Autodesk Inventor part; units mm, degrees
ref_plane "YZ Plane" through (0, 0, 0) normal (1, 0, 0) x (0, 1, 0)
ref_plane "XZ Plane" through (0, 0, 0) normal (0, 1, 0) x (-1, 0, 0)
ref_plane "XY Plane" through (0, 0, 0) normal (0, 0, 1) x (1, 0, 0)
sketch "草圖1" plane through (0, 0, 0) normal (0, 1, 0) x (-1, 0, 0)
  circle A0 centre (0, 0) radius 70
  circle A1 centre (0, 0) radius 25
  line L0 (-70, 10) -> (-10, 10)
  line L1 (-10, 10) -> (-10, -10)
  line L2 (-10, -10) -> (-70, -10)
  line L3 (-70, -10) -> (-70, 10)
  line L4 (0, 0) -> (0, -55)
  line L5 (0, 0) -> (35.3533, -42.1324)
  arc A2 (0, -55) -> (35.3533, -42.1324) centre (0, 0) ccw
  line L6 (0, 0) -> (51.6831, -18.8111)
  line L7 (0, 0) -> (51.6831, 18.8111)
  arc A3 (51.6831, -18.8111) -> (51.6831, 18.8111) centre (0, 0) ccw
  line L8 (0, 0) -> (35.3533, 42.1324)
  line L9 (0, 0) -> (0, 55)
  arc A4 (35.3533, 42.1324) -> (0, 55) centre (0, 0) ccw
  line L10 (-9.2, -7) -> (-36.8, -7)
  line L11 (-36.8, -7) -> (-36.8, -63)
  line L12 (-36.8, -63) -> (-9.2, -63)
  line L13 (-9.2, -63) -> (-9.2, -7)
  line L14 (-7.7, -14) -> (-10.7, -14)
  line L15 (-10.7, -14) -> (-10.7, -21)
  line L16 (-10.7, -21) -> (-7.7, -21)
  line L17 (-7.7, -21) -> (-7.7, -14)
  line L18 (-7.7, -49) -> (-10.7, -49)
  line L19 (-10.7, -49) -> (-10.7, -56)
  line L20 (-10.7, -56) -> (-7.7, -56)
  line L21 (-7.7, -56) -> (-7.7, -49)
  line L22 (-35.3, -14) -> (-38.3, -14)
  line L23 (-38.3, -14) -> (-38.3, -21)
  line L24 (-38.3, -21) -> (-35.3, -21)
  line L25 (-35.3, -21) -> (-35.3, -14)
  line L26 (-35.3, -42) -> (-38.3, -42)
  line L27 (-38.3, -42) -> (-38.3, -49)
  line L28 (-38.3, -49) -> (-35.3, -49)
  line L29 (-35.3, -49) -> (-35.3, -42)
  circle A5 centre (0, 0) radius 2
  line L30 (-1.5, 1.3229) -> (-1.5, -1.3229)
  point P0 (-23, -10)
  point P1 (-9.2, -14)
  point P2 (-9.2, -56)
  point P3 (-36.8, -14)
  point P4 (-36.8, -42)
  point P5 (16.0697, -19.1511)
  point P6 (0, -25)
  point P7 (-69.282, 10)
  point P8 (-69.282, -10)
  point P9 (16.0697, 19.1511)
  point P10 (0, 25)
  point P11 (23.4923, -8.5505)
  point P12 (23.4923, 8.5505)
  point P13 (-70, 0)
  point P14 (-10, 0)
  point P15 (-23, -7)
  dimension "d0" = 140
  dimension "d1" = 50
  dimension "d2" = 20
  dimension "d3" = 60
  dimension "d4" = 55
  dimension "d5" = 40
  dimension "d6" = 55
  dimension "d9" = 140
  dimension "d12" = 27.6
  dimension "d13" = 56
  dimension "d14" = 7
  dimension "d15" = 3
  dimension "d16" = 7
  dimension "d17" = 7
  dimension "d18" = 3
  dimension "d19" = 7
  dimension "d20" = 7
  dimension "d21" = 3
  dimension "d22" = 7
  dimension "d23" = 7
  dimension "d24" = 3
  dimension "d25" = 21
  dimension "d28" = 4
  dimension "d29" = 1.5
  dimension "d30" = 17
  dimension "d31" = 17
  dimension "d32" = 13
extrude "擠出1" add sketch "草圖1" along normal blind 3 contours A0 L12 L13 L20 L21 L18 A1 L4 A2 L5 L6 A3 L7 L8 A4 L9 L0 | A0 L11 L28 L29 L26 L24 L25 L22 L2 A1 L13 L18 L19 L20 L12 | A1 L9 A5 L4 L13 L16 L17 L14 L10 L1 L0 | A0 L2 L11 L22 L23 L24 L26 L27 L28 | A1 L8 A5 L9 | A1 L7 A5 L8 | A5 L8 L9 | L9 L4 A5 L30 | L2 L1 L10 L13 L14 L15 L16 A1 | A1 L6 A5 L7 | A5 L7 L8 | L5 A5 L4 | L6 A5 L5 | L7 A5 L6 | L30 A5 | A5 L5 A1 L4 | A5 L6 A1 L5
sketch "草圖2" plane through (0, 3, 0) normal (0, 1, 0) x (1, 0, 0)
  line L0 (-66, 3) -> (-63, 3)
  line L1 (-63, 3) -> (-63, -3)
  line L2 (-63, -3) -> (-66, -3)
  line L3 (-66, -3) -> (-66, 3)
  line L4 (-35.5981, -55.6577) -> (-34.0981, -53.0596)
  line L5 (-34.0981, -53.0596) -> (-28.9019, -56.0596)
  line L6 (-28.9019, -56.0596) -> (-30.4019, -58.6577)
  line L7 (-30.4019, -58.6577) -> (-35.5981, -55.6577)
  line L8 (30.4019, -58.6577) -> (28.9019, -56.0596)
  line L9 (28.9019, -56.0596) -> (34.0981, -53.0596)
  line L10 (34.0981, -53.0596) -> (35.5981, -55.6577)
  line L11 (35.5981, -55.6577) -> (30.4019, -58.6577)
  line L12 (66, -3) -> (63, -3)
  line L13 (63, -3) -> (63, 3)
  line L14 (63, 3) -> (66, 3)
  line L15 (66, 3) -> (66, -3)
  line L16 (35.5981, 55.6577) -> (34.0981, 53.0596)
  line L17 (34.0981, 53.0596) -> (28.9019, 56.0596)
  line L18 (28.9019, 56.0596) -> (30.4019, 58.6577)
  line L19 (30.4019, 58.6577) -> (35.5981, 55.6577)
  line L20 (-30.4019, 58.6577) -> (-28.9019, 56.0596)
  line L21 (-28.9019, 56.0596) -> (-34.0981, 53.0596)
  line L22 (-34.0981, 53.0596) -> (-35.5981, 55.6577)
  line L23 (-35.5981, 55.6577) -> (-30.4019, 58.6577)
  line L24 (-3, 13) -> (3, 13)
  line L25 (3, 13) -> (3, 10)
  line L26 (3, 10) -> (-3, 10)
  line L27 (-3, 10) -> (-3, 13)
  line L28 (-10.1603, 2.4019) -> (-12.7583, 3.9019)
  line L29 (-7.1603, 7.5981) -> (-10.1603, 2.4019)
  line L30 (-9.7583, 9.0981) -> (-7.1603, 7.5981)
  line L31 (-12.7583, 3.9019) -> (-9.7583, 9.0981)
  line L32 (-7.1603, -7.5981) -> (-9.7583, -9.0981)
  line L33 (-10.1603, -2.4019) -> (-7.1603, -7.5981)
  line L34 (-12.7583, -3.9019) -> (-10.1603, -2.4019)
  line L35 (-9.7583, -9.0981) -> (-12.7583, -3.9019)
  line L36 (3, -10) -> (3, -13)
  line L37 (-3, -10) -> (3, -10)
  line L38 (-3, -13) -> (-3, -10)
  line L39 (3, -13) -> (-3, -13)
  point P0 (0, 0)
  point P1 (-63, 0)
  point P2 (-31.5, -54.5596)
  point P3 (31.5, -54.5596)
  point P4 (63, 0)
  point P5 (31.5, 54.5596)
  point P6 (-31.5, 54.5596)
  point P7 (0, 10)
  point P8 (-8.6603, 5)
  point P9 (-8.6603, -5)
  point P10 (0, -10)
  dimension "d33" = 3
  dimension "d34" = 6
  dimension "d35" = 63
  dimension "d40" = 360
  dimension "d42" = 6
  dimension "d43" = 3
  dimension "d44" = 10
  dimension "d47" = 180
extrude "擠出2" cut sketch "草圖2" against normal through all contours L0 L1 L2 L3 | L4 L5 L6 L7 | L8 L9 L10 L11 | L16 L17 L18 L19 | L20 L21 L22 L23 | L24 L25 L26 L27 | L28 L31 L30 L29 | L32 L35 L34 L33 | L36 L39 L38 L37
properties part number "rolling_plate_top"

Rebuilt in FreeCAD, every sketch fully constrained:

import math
import FreeCAD as App
import Part
import Sketcher

V = App.Vector
Q = App.Units.Quantity

doc = App.newDocument("Part")
body = doc.addObject("PartDesign::Body", "Body")

sketch1 = body.newObject("Sketcher::SketchObject", "Sketch")
sketch1.AttachmentSupport = (doc.getObject("XZ_Plane"), [""])
sketch1.MapMode = "FlatFace"
sketch1.addGeometry(Part.LineSegment(V(69.3, 10, 0), V(10, 10, 0)), False)
sketch1.addGeometry(Part.LineSegment(V(10, 10, 0), V(10, -10, 0)), False)
sketch1.addGeometry(Part.LineSegment(V(10, -10, 0), V(69.3, -10, 0)), False)
sketch1.addGeometry(Part.ArcOfCircle(Part.Circle(V(0, 0, 0), V(0, 0, 1), 70), math.radians(8), math.radians(352)), False)
sketch1.addGeometry(Part.LineSegment(V(7.7, -56, 0), V(10.7, -56, 0)), False)
sketch1.addGeometry(Part.LineSegment(V(10.7, -56, 0), V(10.7, -49, 0)), False)
sketch1.addGeometry(Part.LineSegment(V(10.7, -49, 0), V(7.7, -49, 0)), False)
sketch1.addGeometry(Part.LineSegment(V(7.7, -49, 0), V(7.7, -56, 0)), False)
sketch1.addGeometry(Part.LineSegment(V(0, -55, 0), V(0, -25, 0)), False)
sketch1.addGeometry(Part.ArcOfCircle(Part.Circle(V(0, 0, 0), V(0, 0, 1), 25), math.radians(-130), math.radians(-90)), False)
sketch1.addGeometry(Part.LineSegment(V(-16.1, -19.2, 0), V(-35.4, -42.1, 0)), False)
sketch1.addGeometry(Part.ArcOfCircle(Part.Circle(V(0, 0, 0), V(0, 0, 1), 55), math.radians(-130), math.radians(-90)), False)
sketch1.addGeometry(Part.LineSegment(V(-51.7, -18.8, 0), V(-23.5, -8.6, 0)), False)
sketch1.addGeometry(Part.ArcOfCircle(Part.Circle(V(0, 0, 0), V(0, 0, 1), 25), math.radians(160), math.radians(200)), False)
sketch1.addGeometry(Part.LineSegment(V(-23.5, 8.6, 0), V(-51.7, 18.8, 0)), False)
sketch1.addGeometry(Part.ArcOfCircle(Part.Circle(V(0, 0, 0), V(0, 0, 1), 55), math.radians(160), math.radians(200)), False)
sketch1.addGeometry(Part.LineSegment(V(-35.4, 42.1, 0), V(-16.1, 19.2, 0)), False)
sketch1.addGeometry(Part.ArcOfCircle(Part.Circle(V(0, 0, 0), V(0, 0, 1), 25), math.radians(90), math.radians(130)), False)
sketch1.addGeometry(Part.LineSegment(V(0, 25, 0), V(0, 55, 0)), False)
sketch1.addGeometry(Part.ArcOfCircle(Part.Circle(V(0, 0, 0), V(0, 0, 1), 55), math.radians(90), math.radians(130)), False)
sketch1.addGeometry(Part.LineSegment(V(35.3, -49, 0), V(38.3, -49, 0)), False)
sketch1.addGeometry(Part.LineSegment(V(38.3, -49, 0), V(38.3, -42, 0)), False)
sketch1.addGeometry(Part.LineSegment(V(38.3, -42, 0), V(35.3, -42, 0)), False)
sketch1.addGeometry(Part.LineSegment(V(35.3, -42, 0), V(35.3, -49, 0)), False)
sketch1.addGeometry(Part.LineSegment(V(35.3, -21, 0), V(38.3, -21, 0)), False)
sketch1.addGeometry(Part.LineSegment(V(38.3, -21, 0), V(38.3, -14, 0)), False)
sketch1.addGeometry(Part.LineSegment(V(38.3, -14, 0), V(35.3, -14, 0)), False)
sketch1.addGeometry(Part.LineSegment(V(35.3, -14, 0), V(35.3, -21, 0)), False)
sketch1.addGeometry(Part.LineSegment(V(7.7, -21, 0), V(10.7, -21, 0)), False)
sketch1.addGeometry(Part.LineSegment(V(10.7, -21, 0), V(10.7, -14, 0)), False)
sketch1.addGeometry(Part.LineSegment(V(10.7, -14, 0), V(7.7, -14, 0)), False)
sketch1.addGeometry(Part.LineSegment(V(7.7, -14, 0), V(7.7, -21, 0)), False)
sketch1.addConstraint(Sketcher.Constraint("Coincident", 0, 2, 1, 1))
sketch1.addConstraint(Sketcher.Constraint("Coincident", 1, 2, 2, 1))
sketch1.addConstraint(Sketcher.Constraint("Coincident", 2, 2, 3, 2))
sketch1.addConstraint(Sketcher.Constraint("Coincident", 3, 1, 0, 1))
sketch1.addConstraint(Sketcher.Constraint("Coincident", 4, 2, 5, 1))
sketch1.addConstraint(Sketcher.Constraint("Coincident", 5, 2, 6, 1))
sketch1.addConstraint(Sketcher.Constraint("Coincident", 6, 2, 7, 1))
sketch1.addConstraint(Sketcher.Constraint("Coincident", 7, 2, 4, 1))
sketch1.addConstraint(Sketcher.Constraint("Coincident", 8, 2, 9, 2))
sketch1.addConstraint(Sketcher.Constraint("Coincident", 9, 1, 10, 1))
sketch1.addConstraint(Sketcher.Constraint("Coincident", 10, 2, 11, 1))
sketch1.addConstraint(Sketcher.Constraint("Coincident", 11, 2, 8, 1))
sketch1.addConstraint(Sketcher.Constraint("Coincident", 12, 2, 13, 2))
sketch1.addConstraint(Sketcher.Constraint("Coincident", 13, 1, 14, 1))
sketch1.addConstraint(Sketcher.Constraint("Coincident", 14, 2, 15, 1))
sketch1.addConstraint(Sketcher.Constraint("Coincident", 15, 2, 12, 1))
sketch1.addConstraint(Sketcher.Constraint("Coincident", 16, 2, 17, 2))
sketch1.addConstraint(Sketcher.Constraint("Coincident", 17, 1, 18, 1))
sketch1.addConstraint(Sketcher.Constraint("Coincident", 18, 2, 19, 1))
sketch1.addConstraint(Sketcher.Constraint("Coincident", 19, 2, 16, 1))
sketch1.addConstraint(Sketcher.Constraint("Coincident", 20, 2, 21, 1))
sketch1.addConstraint(Sketcher.Constraint("Coincident", 21, 2, 22, 1))
sketch1.addConstraint(Sketcher.Constraint("Coincident", 22, 2, 23, 1))
sketch1.addConstraint(Sketcher.Constraint("Coincident", 23, 2, 20, 1))
sketch1.addConstraint(Sketcher.Constraint("Coincident", 24, 2, 25, 1))
sketch1.addConstraint(Sketcher.Constraint("Coincident", 25, 2, 26, 1))
sketch1.addConstraint(Sketcher.Constraint("Coincident", 26, 2, 27, 1))
sketch1.addConstraint(Sketcher.Constraint("Coincident", 27, 2, 24, 1))
sketch1.addConstraint(Sketcher.Constraint("Coincident", 28, 2, 29, 1))
sketch1.addConstraint(Sketcher.Constraint("Coincident", 29, 2, 30, 1))
sketch1.addConstraint(Sketcher.Constraint("Coincident", 30, 2, 31, 1))
sketch1.addConstraint(Sketcher.Constraint("Coincident", 31, 2, 28, 1))
sketch1.addConstraint(Sketcher.Constraint("Horizontal", 0))
sketch1.addConstraint(Sketcher.Constraint("Vertical", 1))
sketch1.addConstraint(Sketcher.Constraint("Horizontal", 2))
sketch1.addConstraint(Sketcher.Constraint("Horizontal", 4))
sketch1.addConstraint(Sketcher.Constraint("Vertical", 5))
sketch1.addConstraint(Sketcher.Constraint("Horizontal", 6))
sketch1.addConstraint(Sketcher.Constraint("Vertical", 7))
sketch1.addConstraint(Sketcher.Constraint("Vertical", 8))
sketch1.addConstraint(Sketcher.Constraint("Vertical", 18))
sketch1.addConstraint(Sketcher.Constraint("Horizontal", 20))
sketch1.addConstraint(Sketcher.Constraint("Vertical", 21))
sketch1.addConstraint(Sketcher.Constraint("Horizontal", 22))
sketch1.addConstraint(Sketcher.Constraint("Vertical", 23))
sketch1.addConstraint(Sketcher.Constraint("Horizontal", 24))
sketch1.addConstraint(Sketcher.Constraint("Vertical", 25))
sketch1.addConstraint(Sketcher.Constraint("Horizontal", 26))
sketch1.addConstraint(Sketcher.Constraint("Vertical", 27))
sketch1.addConstraint(Sketcher.Constraint("Horizontal", 28))
sketch1.addConstraint(Sketcher.Constraint("Vertical", 29))
sketch1.addConstraint(Sketcher.Constraint("Horizontal", 30))
sketch1.addConstraint(Sketcher.Constraint("Vertical", 31))
sketch1.addConstraint(Sketcher.Constraint("Coincident", 3, 3, -1, 1))
sketch1.addConstraint(Sketcher.Constraint("Coincident", 9, 3, -1, 1))
sketch1.addConstraint(Sketcher.Constraint("Coincident", 11, 3, -1, 1))
sketch1.addConstraint(Sketcher.Constraint("Coincident", 13, 3, -1, 1))
sketch1.addConstraint(Sketcher.Constraint("Coincident", 15, 3, -1, 1))
sketch1.addConstraint(Sketcher.Constraint("Coincident", 17, 3, -1, 1))
sketch1.addConstraint(Sketcher.Constraint("Coincident", 19, 3, -1, 1))
sketch1.addConstraint(Sketcher.Constraint("Equal", 9, 13))
sketch1.addConstraint(Sketcher.Constraint("Equal", 11, 15))
sketch1.addConstraint(Sketcher.Constraint("Equal", 13, 17))
sketch1.addConstraint(Sketcher.Constraint("Equal", 15, 19))
sketch1.addConstraint(Sketcher.Constraint("PointOnObject", 8, 2, -2))
sketch1.addConstraint(Sketcher.Constraint("PointOnObject", 17, 1, -2))
sketch1.addConstraint(Sketcher.Constraint("Horizontal", 6, 2, 20, 2))
sketch1.addConstraint(Sketcher.Constraint("Horizontal", 27, 2, 28, 2))
sketch1.addConstraint(Sketcher.Constraint("Horizontal", 26, 2, 29, 2))
sketch1.addConstraint(Sketcher.Constraint("Vertical", 2, 2, 3, 1))
sketch1.addConstraint(Sketcher.Constraint("Vertical", 12, 2, 13, 1))
sketch1.addConstraint(Sketcher.Constraint("Vertical", 14, 2, 15, 2))
sketch1.addConstraint(Sketcher.Constraint("Vertical", 9, 1, 16, 2))
sketch1.addConstraint(Sketcher.Constraint("Vertical", 10, 2, 19, 2))
sketch1.addConstraint(Sketcher.Constraint("Vertical", 21, 2, 24, 2))
sketch1.addConstraint(Sketcher.Constraint("Vertical", 23, 2, 26, 2))
sketch1.addConstraint(Sketcher.Constraint("Vertical", 5, 2, 28, 2))
sketch1.addConstraint(Sketcher.Constraint("Vertical", 7, 2, 30, 2))
sketch1.addConstraint(Sketcher.Constraint("Equal", 6, 20))
sketch1.addConstraint(Sketcher.Constraint("Equal", 7, 21))
sketch1.addConstraint(Sketcher.Constraint("Equal", 23, 25))
sketch1.addConstraint(Sketcher.Constraint("Radius", 3, Q("70 mm")))
sketch1.addConstraint(Sketcher.Constraint("Radius", 9, Q("25 mm")))
sketch1.addConstraint(Sketcher.Constraint("Radius", 11, Q("55 mm")))
sketch1.addConstraint(Sketcher.Constraint("DistanceX", 4, 1, 4, 2, Q("3 mm")))
sketch1.addConstraint(Sketcher.Constraint("DistanceY", 1, 2, 1, 1, Q("20 mm")))
sketch1.addConstraint(Sketcher.Constraint("DistanceY", 5, 1, 5, 2, Q("7 mm")))
sketch1.addConstraint(Sketcher.Constraint("Angle", 12, Q("20 deg")))
sketch1.addConstraint(Sketcher.Constraint("Angle", 16, Q("-50 deg")))
sketch1.addConstraint(Sketcher.Constraint("DistanceY", 4, 2, -1, 1, Q("56 mm")))
sketch1.addConstraint(Sketcher.Constraint("DistanceY", 24, 2, -1, 1, Q("21 mm")))
sketch1.addConstraint(Sketcher.Constraint("DistanceX", 5, 2, 20, 2, Q("27.6 mm")))
sketch1.addConstraint(Sketcher.Constraint("DistanceX", -1, 1, 0, 2, Q("10 mm")))
sketch1.addConstraint(Sketcher.Constraint("DistanceX", -1, 1, 4, 2, Q("10.7 mm")))
sketch1.addConstraint(Sketcher.Constraint("DistanceY", 9, 1, 15, 2, Q("0.34 mm")))
sketch1.addConstraint(Sketcher.Constraint("DistanceY", 9, 1, -1, 1, Q("19.151 mm")))
pad1 = body.newObject("PartDesign::Pad", "Pad")
pad1.Profile = sketch1
pad1.Length = 3
pad1.Reversed = True

sketch2 = body.newObject("Sketcher::SketchObject", "Sketch001")
sketch2.AttachmentSupport = (doc.getObject("XZ_Plane"), [""])
sketch2.MapMode = "FlatFace"
sketch2.AttachmentOffset = App.Placement(V(0, 0, -3), App.Rotation())
sketch2.addGeometry(Part.LineSegment(V(-63, -3, 0), V(-66, -3, 0)), False)
sketch2.addGeometry(Part.LineSegment(V(-66, -3, 0), V(-66, 3, 0)), False)
sketch2.addGeometry(Part.LineSegment(V(-66, 3, 0), V(-63, 3, 0)), False)
sketch2.addGeometry(Part.LineSegment(V(-63, 3, 0), V(-63, -3, 0)), False)
sketch2.addGeometry(Part.LineSegment(V(-34.1, 53.1, 0), V(-35.6, 55.7, 0)), False)
sketch2.addGeometry(Part.LineSegment(V(-35.6, 55.7, 0), V(-30.4, 58.7, 0)), False)
sketch2.addGeometry(Part.LineSegment(V(-30.4, 58.7, 0), V(-28.9, 56.1, 0)), False)
sketch2.addGeometry(Part.LineSegment(V(-28.9, 56.1, 0), V(-34.1, 53.1, 0)), False)
sketch2.addGeometry(Part.LineSegment(V(28.9, 56.1, 0), V(30.4, 58.7, 0)), False)
sketch2.addGeometry(Part.LineSegment(V(30.4, 58.7, 0), V(35.6, 55.7, 0)), False)
sketch2.addGeometry(Part.LineSegment(V(35.6, 55.7, 0), V(34.1, 53.1, 0)), False)
sketch2.addGeometry(Part.LineSegment(V(34.1, 53.1, 0), V(28.9, 56.1, 0)), False)
sketch2.addGeometry(Part.LineSegment(V(34.1, -53.1, 0), V(35.6, -55.7, 0)), False)
sketch2.addGeometry(Part.LineSegment(V(35.6, -55.7, 0), V(30.4, -58.7, 0)), False)
sketch2.addGeometry(Part.LineSegment(V(30.4, -58.7, 0), V(28.9, -56.1, 0)), False)
sketch2.addGeometry(Part.LineSegment(V(28.9, -56.1, 0), V(34.1, -53.1, 0)), False)
sketch2.addGeometry(Part.LineSegment(V(-28.9, -56.1, 0), V(-30.4, -58.7, 0)), False)
sketch2.addGeometry(Part.LineSegment(V(-30.4, -58.7, 0), V(-35.6, -55.7, 0)), False)
sketch2.addGeometry(Part.LineSegment(V(-35.6, -55.7, 0), V(-34.1, -53.1, 0)), False)
sketch2.addGeometry(Part.LineSegment(V(-34.1, -53.1, 0), V(-28.9, -56.1, 0)), False)
sketch2.addGeometry(Part.LineSegment(V(3, -13, 0), V(-3, -13, 0)), False)
sketch2.addGeometry(Part.LineSegment(V(-3, -13, 0), V(-3, -10, 0)), False)
sketch2.addGeometry(Part.LineSegment(V(-3, -10, 0), V(3, -10, 0)), False)
sketch2.addGeometry(Part.LineSegment(V(3, -10, 0), V(3, -13, 0)), False)
sketch2.addGeometry(Part.LineSegment(V(-12.8, -3.9, 0), V(-10.2, -2.4, 0)), False)
sketch2.addGeometry(Part.LineSegment(V(-10.2, -2.4, 0), V(-7.2, -7.6, 0)), False)
sketch2.addGeometry(Part.LineSegment(V(-7.2, -7.6, 0), V(-9.8, -9.1, 0)), False)
sketch2.addGeometry(Part.LineSegment(V(-9.8, -9.1, 0), V(-12.8, -3.9, 0)), False)
sketch2.addGeometry(Part.LineSegment(V(-9.8, 9.1, 0), V(-7.2, 7.6, 0)), False)
sketch2.addGeometry(Part.LineSegment(V(-7.2, 7.6, 0), V(-10.2, 2.4, 0)), False)
sketch2.addGeometry(Part.LineSegment(V(-10.2, 2.4, 0), V(-12.8, 3.9, 0)), False)
sketch2.addGeometry(Part.LineSegment(V(-12.8, 3.9, 0), V(-9.8, 9.1, 0)), False)
sketch2.addGeometry(Part.LineSegment(V(3, 13, 0), V(3, 10, 0)), False)
sketch2.addGeometry(Part.LineSegment(V(3, 10, 0), V(-3, 10, 0)), False)
sketch2.addGeometry(Part.LineSegment(V(-3, 10, 0), V(-3, 13, 0)), False)
sketch2.addGeometry(Part.LineSegment(V(-3, 13, 0), V(3, 13, 0)), False)
sketch2.addConstraint(Sketcher.Constraint("Coincident", 0, 2, 1, 1))
sketch2.addConstraint(Sketcher.Constraint("Coincident", 1, 2, 2, 1))
sketch2.addConstraint(Sketcher.Constraint("Coincident", 2, 2, 3, 1))
sketch2.addConstraint(Sketcher.Constraint("Coincident", 3, 2, 0, 1))
sketch2.addConstraint(Sketcher.Constraint("Coincident", 4, 2, 5, 1))
sketch2.addConstraint(Sketcher.Constraint("Coincident", 5, 2, 6, 1))
sketch2.addConstraint(Sketcher.Constraint("Coincident", 6, 2, 7, 1))
sketch2.addConstraint(Sketcher.Constraint("Coincident", 7, 2, 4, 1))
sketch2.addConstraint(Sketcher.Constraint("Coincident", 8, 2, 9, 1))
sketch2.addConstraint(Sketcher.Constraint("Coincident", 9, 2, 10, 1))
sketch2.addConstraint(Sketcher.Constraint("Coincident", 10, 2, 11, 1))
sketch2.addConstraint(Sketcher.Constraint("Coincident", 11, 2, 8, 1))
sketch2.addConstraint(Sketcher.Constraint("Coincident", 12, 2, 13, 1))
sketch2.addConstraint(Sketcher.Constraint("Coincident", 13, 2, 14, 1))
sketch2.addConstraint(Sketcher.Constraint("Coincident", 14, 2, 15, 1))
sketch2.addConstraint(Sketcher.Constraint("Coincident", 15, 2, 12, 1))
sketch2.addConstraint(Sketcher.Constraint("Coincident", 16, 2, 17, 1))
sketch2.addConstraint(Sketcher.Constraint("Coincident", 17, 2, 18, 1))
sketch2.addConstraint(Sketcher.Constraint("Coincident", 18, 2, 19, 1))
sketch2.addConstraint(Sketcher.Constraint("Coincident", 19, 2, 16, 1))
sketch2.addConstraint(Sketcher.Constraint("Coincident", 20, 2, 21, 1))
sketch2.addConstraint(Sketcher.Constraint("Coincident", 21, 2, 22, 1))
sketch2.addConstraint(Sketcher.Constraint("Coincident", 22, 2, 23, 1))
sketch2.addConstraint(Sketcher.Constraint("Coincident", 23, 2, 20, 1))
sketch2.addConstraint(Sketcher.Constraint("Coincident", 24, 2, 25, 1))
sketch2.addConstraint(Sketcher.Constraint("Coincident", 25, 2, 26, 1))
sketch2.addConstraint(Sketcher.Constraint("Coincident", 26, 2, 27, 1))
sketch2.addConstraint(Sketcher.Constraint("Coincident", 27, 2, 24, 1))
sketch2.addConstraint(Sketcher.Constraint("Coincident", 28, 2, 29, 1))
sketch2.addConstraint(Sketcher.Constraint("Coincident", 29, 2, 30, 1))
sketch2.addConstraint(Sketcher.Constraint("Coincident", 30, 2, 31, 1))
sketch2.addConstraint(Sketcher.Constraint("Coincident", 31, 2, 28, 1))
sketch2.addConstraint(Sketcher.Constraint("Coincident", 32, 2, 33, 1))
sketch2.addConstraint(Sketcher.Constraint("Coincident", 33, 2, 34, 1))
sketch2.addConstraint(Sketcher.Constraint("Coincident", 34, 2, 35, 1))
sketch2.addConstraint(Sketcher.Constraint("Coincident", 35, 2, 32, 1))
sketch2.addConstraint(Sketcher.Constraint("Horizontal", 0))
sketch2.addConstraint(Sketcher.Constraint("Vertical", 1))
sketch2.addConstraint(Sketcher.Constraint("Horizontal", 2))
sketch2.addConstraint(Sketcher.Constraint("Vertical", 3))
sketch2.addConstraint(Sketcher.Constraint("Horizontal", 20))
sketch2.addConstraint(Sketcher.Constraint("Vertical", 21))
sketch2.addConstraint(Sketcher.Constraint("Horizontal", 22))
sketch2.addConstraint(Sketcher.Constraint("Vertical", 23))
sketch2.addConstraint(Sketcher.Constraint("Vertical", 32))
sketch2.addConstraint(Sketcher.Constraint("Horizontal", 33))
sketch2.addConstraint(Sketcher.Constraint("Vertical", 34))
sketch2.addConstraint(Sketcher.Constraint("Horizontal", 35))
sketch2.addConstraint(Sketcher.Constraint("Symmetric", 4, 2, 12, 2, -1, 1))
sketch2.addConstraint(Sketcher.Constraint("Symmetric", 5, 2, 13, 2, -1, 1))
sketch2.addConstraint(Sketcher.Constraint("Symmetric", 6, 2, 14, 2, -1, 1))
sketch2.addConstraint(Sketcher.Constraint("Symmetric", 7, 2, 15, 2, -1, 1))
sketch2.addConstraint(Sketcher.Constraint("Symmetric", 8, 2, 16, 2, -1, 1))
sketch2.addConstraint(Sketcher.Constraint("Symmetric", 9, 2, 17, 2, -1, 1))
sketch2.addConstraint(Sketcher.Constraint("Symmetric", 10, 2, 18, 2, -1, 1))
sketch2.addConstraint(Sketcher.Constraint("Symmetric", 11, 2, 19, 2, -1, 1))
sketch2.addConstraint(Sketcher.Constraint("Symmetric", 21, 2, 32, 2, -1, 1))
sketch2.addConstraint(Sketcher.Constraint("Symmetric", 23, 2, 34, 2, -1, 1))
sketch2.addConstraint(Sketcher.Constraint("Symmetric", 5, 2, 8, 2, -2))
sketch2.addConstraint(Sketcher.Constraint("Symmetric", 4, 2, 9, 2, -2))
sketch2.addConstraint(Sketcher.Constraint("Symmetric", 7, 2, 10, 2, -2))
sketch2.addConstraint(Sketcher.Constraint("Symmetric", 6, 2, 11, 2, -2))
sketch2.addConstraint(Sketcher.Constraint("Symmetric", 25, 2, 28, 2, -1))
sketch2.addConstraint(Sketcher.Constraint("Symmetric", 24, 2, 29, 2, -1))
sketch2.addConstraint(Sketcher.Constraint("Symmetric", 27, 2, 30, 2, -1))
sketch2.addConstraint(Sketcher.Constraint("Symmetric", 26, 2, 31, 2, -1))
sketch2.addConstraint(Sketcher.Constraint("Perpendicular", 4, 5))
sketch2.addConstraint(Sketcher.Constraint("Perpendicular", 5, 6))
sketch2.addConstraint(Sketcher.Constraint("Perpendicular", 6, 7))
sketch2.addConstraint(Sketcher.Constraint("Parallel", 15, 24))
sketch2.addConstraint(Sketcher.Constraint("Perpendicular", 24, 25))
sketch2.addConstraint(Sketcher.Constraint("Perpendicular", 25, 26))
sketch2.addConstraint(Sketcher.Constraint("Perpendicular", 26, 27))
sketch2.addConstraint(Sketcher.Constraint("Vertical", 23, 2, 32, 2))
sketch2.addConstraint(Sketcher.Constraint("Equal", 35, 1))
sketch2.addConstraint(Sketcher.Constraint("Equal", 2, 21))
sketch2.addConstraint(Sketcher.Constraint("Equal", 18, 24))
sketch2.addConstraint(Sketcher.Constraint("Equal", 19, 25))
sketch2.addConstraint(Sketcher.Constraint("DistanceX", 0, 2, 0, 1, Q("3 mm")))
sketch2.addConstraint(Sketcher.Constraint("DistanceX", 20, 2, 20, 1, Q("6 mm")))
sketch2.addConstraint(Sketcher.Constraint("Distance", 4, Q("3 mm")))
sketch2.addConstraint(Sketcher.Constraint("Distance", 5, Q("6 mm")))
sketch2.addConstraint(Sketcher.Constraint("DistanceY", 0, 2, -1, 1, Q("3 mm")))
sketch2.addConstraint(Sketcher.Constraint("DistanceX", 2, 2, -1, 1, Q("63 mm")))
sketch2.addConstraint(Sketcher.Constraint("DistanceY", 21, 2, -1, 1, Q("10 mm")))
sketch2.addConstraint(Sketcher.Constraint("DistanceY", 4, 2, 5, 2, Q("3 mm")))
sketch2.addConstraint(Sketcher.Constraint("DistanceX", 6, 2, 10, 2, Q("63 mm")))
sketch2.addConstraint(Sketcher.Constraint("DistanceY", 24, 2, 28, 2, Q("10 mm")))
sketch2.addConstraint(Sketcher.Constraint("DistanceY", -1, 1, 4, 2, Q("55.6577 mm")))
sketch2.addConstraint(Sketcher.Constraint("DistanceX", 24, 2, -1, 1, Q("10.1603 mm")))
pocket1 = body.newObject("PartDesign::Pocket", "Pocket")
pocket1.Profile = sketch2
pocket1.Type = "ThroughAll"
pocket1.Reversed = True

doc.recompute()
